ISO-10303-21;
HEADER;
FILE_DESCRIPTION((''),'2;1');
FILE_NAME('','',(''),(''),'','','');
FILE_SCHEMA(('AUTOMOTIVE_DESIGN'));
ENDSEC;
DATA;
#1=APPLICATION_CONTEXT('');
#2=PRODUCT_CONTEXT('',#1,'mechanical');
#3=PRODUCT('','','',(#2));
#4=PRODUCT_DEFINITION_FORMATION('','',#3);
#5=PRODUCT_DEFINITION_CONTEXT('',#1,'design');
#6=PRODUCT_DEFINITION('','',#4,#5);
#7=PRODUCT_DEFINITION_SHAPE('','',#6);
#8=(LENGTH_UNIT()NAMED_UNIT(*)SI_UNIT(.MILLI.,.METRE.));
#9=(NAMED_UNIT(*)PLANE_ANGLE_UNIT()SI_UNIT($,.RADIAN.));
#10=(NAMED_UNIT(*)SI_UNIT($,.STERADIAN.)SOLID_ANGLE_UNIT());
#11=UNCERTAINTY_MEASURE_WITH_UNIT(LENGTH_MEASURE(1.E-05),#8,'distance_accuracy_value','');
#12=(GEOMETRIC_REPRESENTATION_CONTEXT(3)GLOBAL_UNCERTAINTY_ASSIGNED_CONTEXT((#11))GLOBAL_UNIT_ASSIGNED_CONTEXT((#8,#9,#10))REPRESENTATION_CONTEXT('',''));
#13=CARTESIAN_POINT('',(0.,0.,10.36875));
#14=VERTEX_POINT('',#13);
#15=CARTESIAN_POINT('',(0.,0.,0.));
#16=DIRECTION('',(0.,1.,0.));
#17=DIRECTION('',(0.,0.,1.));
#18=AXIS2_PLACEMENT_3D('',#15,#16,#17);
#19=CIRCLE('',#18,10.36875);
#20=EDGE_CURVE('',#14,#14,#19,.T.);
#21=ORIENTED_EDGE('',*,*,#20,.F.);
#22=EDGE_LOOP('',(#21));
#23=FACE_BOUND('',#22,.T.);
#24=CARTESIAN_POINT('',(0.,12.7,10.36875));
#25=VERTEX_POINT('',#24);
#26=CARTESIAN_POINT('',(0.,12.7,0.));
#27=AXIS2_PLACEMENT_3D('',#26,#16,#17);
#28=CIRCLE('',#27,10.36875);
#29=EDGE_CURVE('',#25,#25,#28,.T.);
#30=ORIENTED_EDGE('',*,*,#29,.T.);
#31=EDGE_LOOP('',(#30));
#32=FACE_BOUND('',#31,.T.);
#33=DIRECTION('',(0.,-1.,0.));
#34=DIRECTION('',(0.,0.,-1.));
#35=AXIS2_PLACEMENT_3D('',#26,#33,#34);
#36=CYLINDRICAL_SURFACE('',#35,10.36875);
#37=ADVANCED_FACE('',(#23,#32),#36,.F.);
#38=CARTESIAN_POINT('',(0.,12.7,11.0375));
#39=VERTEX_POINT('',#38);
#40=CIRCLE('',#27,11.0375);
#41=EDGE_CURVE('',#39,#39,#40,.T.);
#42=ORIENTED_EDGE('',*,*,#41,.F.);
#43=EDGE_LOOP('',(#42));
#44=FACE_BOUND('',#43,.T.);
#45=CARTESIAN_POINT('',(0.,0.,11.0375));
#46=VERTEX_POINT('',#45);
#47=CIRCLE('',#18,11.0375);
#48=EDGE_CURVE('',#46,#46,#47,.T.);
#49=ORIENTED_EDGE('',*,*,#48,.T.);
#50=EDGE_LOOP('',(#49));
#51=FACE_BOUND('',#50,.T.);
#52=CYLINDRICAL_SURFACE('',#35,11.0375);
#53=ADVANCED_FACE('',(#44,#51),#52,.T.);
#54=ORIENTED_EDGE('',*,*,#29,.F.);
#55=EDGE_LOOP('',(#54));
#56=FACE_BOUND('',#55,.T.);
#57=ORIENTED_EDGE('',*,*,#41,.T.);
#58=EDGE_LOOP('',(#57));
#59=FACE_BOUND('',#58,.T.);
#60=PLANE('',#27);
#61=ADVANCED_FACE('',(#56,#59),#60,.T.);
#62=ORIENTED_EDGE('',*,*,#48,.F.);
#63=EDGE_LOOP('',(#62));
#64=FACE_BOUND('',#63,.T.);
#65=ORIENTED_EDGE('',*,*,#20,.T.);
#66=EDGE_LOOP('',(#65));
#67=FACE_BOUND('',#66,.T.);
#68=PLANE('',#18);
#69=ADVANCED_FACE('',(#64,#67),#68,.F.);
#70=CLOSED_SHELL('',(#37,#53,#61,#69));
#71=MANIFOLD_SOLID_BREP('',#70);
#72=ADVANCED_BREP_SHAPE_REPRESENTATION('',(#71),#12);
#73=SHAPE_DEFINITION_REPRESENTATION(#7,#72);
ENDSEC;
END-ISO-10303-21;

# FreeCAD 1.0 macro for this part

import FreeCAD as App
import Part
import Sketcher

V = App.Vector
Q = App.Units.Quantity

doc = App.newDocument("Part")
body = doc.addObject("PartDesign::Body", "Body")

# Sketch on XZ plane
sketch1 = doc.addObject("Sketcher::SketchObject", "Sketch")
body.addObject(sketch1)
sketch1.AttachmentSupport = (doc.XZ_Plane, [""])
sketch1.MapMode = "FlatFace"
sketch1.addGeometry([
    Part.Circle(V(0, 0, 0), V(0, 0, 1), 11),
    Part.Circle(V(0, 0, 0), V(0, 0, 1), 10),
], False)
sketch1.addConstraint([
    Sketcher.Constraint("Coincident", 0, 3, -1, 1),
    Sketcher.Constraint("Coincident", 1, 3, -1, 1),
    Sketcher.Constraint("Diameter", 0, Q("22.075 mm")),
    Sketcher.Constraint("Diameter", 1, Q("20.7375 mm")),
])
pad1 = doc.addObject("PartDesign::Pad", "Pad")
body.addObject(pad1)
pad1.Profile = sketch1
pad1.Length = Q("0.5 in")
pad1.Reversed = True

doc.recompute()
